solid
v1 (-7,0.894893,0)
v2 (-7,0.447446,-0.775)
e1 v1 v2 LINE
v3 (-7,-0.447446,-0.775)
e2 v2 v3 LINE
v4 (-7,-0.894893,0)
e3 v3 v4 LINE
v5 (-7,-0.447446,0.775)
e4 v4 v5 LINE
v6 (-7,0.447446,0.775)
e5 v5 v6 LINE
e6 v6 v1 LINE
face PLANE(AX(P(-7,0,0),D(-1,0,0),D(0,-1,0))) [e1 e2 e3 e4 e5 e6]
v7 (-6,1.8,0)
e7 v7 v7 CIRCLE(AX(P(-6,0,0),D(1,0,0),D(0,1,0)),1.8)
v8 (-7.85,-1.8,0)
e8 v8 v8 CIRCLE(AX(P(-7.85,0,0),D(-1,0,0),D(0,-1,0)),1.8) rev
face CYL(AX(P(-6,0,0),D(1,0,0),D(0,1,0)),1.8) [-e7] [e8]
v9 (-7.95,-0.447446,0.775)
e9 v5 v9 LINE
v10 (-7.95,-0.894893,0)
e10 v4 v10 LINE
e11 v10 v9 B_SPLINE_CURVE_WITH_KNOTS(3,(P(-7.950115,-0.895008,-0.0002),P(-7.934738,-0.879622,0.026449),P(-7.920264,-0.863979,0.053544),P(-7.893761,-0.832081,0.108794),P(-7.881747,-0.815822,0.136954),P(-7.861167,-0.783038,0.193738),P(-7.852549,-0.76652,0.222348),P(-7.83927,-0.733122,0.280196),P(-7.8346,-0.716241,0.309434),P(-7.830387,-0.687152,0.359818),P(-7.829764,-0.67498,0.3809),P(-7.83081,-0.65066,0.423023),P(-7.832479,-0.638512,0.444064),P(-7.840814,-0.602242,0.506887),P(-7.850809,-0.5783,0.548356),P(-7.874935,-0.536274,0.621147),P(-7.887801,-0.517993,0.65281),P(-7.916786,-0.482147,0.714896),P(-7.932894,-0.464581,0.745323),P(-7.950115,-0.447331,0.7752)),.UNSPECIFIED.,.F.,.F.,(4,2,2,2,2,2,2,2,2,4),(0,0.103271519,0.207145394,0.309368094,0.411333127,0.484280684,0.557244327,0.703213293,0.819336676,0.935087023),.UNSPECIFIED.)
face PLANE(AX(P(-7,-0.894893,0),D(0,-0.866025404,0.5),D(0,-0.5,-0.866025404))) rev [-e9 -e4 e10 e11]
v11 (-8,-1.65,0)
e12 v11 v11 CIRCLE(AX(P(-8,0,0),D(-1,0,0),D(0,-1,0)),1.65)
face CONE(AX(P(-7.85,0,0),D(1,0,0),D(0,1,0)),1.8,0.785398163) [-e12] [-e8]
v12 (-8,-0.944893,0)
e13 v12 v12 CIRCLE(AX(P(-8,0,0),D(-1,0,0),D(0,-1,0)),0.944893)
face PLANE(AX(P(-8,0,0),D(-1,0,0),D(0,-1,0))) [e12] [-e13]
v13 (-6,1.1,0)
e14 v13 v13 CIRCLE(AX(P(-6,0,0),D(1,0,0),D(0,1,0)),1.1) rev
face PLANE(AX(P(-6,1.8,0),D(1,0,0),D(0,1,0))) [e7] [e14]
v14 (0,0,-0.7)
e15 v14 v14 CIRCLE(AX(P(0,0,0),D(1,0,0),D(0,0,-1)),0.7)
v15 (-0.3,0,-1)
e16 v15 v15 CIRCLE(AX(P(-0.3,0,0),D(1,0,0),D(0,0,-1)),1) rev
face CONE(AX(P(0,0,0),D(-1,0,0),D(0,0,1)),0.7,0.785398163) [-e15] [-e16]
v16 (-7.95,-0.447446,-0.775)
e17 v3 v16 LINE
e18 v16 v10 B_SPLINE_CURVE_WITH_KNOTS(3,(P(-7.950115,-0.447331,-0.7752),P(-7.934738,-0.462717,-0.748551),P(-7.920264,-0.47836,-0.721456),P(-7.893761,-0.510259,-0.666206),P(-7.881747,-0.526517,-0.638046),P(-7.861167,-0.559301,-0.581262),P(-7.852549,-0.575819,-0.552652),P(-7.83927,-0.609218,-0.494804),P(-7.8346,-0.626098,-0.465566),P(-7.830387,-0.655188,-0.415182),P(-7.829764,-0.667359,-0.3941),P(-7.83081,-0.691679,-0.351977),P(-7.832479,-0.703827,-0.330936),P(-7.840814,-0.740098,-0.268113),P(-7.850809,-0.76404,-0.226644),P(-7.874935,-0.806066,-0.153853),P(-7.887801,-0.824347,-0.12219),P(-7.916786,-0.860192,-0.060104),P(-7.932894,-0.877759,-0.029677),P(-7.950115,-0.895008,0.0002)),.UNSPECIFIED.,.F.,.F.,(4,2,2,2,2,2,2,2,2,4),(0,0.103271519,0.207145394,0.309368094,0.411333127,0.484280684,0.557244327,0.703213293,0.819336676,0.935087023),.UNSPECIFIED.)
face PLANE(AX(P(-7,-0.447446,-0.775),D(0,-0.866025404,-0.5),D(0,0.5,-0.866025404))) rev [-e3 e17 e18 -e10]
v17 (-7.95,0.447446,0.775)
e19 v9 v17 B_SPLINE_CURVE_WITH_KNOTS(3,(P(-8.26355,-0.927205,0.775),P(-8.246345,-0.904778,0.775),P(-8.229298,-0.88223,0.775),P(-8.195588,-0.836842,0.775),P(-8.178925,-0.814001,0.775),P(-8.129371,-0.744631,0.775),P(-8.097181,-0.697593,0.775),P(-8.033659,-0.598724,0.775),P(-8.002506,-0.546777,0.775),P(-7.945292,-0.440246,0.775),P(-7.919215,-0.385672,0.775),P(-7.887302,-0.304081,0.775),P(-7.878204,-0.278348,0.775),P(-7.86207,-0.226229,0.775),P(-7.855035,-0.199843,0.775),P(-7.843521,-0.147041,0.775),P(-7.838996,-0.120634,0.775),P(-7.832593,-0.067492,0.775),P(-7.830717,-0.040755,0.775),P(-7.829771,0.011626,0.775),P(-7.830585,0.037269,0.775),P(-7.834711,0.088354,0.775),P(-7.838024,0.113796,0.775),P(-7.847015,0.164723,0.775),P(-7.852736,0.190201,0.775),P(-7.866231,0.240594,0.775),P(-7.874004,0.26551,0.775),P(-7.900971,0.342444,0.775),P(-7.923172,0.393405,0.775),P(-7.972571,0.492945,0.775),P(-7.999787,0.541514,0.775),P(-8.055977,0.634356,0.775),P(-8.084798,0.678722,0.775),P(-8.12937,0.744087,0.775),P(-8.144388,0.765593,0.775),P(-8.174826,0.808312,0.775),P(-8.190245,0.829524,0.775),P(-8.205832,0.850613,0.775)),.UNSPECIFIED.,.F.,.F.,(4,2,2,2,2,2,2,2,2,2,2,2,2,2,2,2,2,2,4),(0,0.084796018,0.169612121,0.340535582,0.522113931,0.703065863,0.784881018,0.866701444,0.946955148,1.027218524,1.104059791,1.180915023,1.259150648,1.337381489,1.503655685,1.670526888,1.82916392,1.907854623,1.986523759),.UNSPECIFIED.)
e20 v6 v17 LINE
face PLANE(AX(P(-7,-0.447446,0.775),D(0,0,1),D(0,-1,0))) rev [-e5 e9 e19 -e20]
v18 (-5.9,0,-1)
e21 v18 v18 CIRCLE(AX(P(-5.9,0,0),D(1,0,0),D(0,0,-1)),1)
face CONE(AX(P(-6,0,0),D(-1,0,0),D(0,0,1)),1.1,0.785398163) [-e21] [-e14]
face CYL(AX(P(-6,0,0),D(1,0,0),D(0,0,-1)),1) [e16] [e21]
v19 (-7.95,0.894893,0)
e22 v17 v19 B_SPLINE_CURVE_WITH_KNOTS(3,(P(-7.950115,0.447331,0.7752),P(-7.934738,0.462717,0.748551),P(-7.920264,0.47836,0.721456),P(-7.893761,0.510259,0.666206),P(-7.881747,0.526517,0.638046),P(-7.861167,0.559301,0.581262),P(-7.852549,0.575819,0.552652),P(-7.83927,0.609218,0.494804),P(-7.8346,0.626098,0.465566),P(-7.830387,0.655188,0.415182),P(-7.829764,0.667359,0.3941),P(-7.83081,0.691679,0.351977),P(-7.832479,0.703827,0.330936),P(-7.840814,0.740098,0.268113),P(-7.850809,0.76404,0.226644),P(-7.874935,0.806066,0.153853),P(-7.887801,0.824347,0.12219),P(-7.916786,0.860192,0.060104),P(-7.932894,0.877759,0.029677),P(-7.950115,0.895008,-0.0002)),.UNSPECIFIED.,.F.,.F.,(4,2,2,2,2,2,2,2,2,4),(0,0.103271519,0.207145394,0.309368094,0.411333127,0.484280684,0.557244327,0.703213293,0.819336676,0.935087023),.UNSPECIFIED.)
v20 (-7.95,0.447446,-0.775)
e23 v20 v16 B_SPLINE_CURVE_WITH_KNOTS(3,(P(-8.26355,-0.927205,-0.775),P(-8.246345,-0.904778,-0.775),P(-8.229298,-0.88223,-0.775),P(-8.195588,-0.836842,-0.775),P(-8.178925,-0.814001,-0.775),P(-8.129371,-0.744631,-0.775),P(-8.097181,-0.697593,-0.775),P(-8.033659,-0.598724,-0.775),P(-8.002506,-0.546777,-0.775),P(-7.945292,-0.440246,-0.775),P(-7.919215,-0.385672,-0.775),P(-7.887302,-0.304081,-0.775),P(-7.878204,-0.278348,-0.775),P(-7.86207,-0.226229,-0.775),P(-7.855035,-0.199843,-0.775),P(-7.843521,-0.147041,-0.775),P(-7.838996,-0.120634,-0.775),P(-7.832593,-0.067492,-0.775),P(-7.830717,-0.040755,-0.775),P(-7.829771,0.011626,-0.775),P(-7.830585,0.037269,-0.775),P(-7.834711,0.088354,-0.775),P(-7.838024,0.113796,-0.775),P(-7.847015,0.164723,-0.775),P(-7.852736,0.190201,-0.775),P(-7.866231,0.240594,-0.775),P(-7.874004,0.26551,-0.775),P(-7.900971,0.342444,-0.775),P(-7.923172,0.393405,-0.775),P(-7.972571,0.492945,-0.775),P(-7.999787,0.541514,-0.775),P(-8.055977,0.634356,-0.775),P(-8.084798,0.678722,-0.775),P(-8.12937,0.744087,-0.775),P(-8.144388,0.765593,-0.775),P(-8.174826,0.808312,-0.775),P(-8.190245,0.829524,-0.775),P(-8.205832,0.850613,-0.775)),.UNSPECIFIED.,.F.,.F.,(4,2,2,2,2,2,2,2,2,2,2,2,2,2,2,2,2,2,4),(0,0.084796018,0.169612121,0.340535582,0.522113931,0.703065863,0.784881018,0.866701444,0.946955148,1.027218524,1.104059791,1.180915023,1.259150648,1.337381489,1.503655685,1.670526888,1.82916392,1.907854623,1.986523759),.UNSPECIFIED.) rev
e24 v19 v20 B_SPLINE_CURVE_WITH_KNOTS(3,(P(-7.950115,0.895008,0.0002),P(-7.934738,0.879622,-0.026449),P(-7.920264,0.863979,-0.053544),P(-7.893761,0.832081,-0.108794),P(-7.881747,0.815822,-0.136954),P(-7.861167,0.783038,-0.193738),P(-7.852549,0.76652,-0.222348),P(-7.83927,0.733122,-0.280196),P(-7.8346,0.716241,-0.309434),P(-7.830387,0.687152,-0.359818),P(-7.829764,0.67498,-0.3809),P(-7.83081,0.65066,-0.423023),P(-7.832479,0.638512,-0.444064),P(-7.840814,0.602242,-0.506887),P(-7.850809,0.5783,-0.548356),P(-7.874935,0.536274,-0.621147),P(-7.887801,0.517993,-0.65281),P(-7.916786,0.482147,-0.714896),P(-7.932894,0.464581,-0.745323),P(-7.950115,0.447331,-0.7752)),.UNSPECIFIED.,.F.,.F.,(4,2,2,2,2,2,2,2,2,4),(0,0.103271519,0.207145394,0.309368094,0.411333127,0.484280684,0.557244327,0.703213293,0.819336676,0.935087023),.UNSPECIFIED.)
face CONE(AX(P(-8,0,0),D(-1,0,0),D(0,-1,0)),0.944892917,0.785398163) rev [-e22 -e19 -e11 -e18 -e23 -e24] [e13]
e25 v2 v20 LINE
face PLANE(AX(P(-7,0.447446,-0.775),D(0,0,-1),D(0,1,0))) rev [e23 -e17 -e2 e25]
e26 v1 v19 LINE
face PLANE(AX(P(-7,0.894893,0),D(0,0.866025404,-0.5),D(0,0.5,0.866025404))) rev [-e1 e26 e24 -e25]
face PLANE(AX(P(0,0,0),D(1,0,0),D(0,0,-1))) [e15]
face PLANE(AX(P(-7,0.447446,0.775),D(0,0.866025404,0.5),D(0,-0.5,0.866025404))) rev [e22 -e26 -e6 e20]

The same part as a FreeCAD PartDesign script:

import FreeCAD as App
import Part
import Sketcher
from FreeCAD import Vector
Q = App.Units.Quantity


def edges_at(feature, points):
    """Names of the edges that pass closest to the given points."""
    edges = feature.Shape.Edges
    near = lambda p: min(range(len(edges)), key=lambda i: edges[i].distToShape(Part.Vertex(*p))[0])
    return sorted({f"Edge{near(p) + 1}" for p in points})

doc = App.newDocument("Part")
params = doc.addObject("Spreadsheet::Sheet", "Params")
for row, (alias, value) in enumerate([
    ("sketch1_diameter", "2 mm"),
    ("pad1_length", "6 mm"),
    ("chamfer_size", "0.3 mm"),
    ("sketch2_width", "2 mm"),
    ("sketch2_height", "1.8 mm"),
    ("revolution_angle", "360 deg"),
    ("pocket1_length", "1 mm"),
    ("groove_angle", "360 deg"),
    ("chamfer2_size", "0.15 mm"),
    ("chamfer3_size", "0.1 mm"),
], start=1):
    params.set(f"A{row}", alias)
    params.set(f"B{row}", "=" + value)
    params.setAlias(f"B{row}", alias)

body = doc.addObject("PartDesign::Body", "Body")

sketch1 = body.newObject("Sketcher::SketchObject", "Sketch")
sketch1.AttachmentSupport = (doc.getObject("YZ_Plane"), [""])
sketch1.MapMode = "FlatFace"
sketch1.addGeometry(Part.Circle(Vector(0, 0, 0), Vector(0, 0, 1), 1), False)
sketch1.addConstraint([
    Sketcher.Constraint("Coincident", 0, 3, -1, 1),
    Sketcher.Constraint("Diameter", 0, Q("2 mm")),
])
sketch1.setExpression("Constraints[1]", "Params.sketch1_diameter")
pad1 = body.newObject("PartDesign::Pad", "Pad")
pad1.Profile = sketch1
pad1.setExpression("Length", "Params.pad1_length")
pad1.Reversed = True
doc.recompute()

chamfer = body.newObject("PartDesign::Chamfer", "Chamfer")
chamfer.Base = (pad1, edges_at(pad1, [(0, 0, 1)]))
chamfer.setExpression("Size", "Params.chamfer_size")

sketch2 = body.newObject("Sketcher::SketchObject", "Sketch001")
sketch2.AttachmentSupport = (doc.getObject("XY_Plane"), [""])
sketch2.MapMode = "FlatFace"
sketch2.addGeometry([
    Part.LineSegment(Vector(-8, 1.8, 0), Vector(-8, 0, 0)),
    Part.LineSegment(Vector(-8, 0, 0), Vector(-6, 0, 0)),
    Part.LineSegment(Vector(-6, 0, 0), Vector(-6, 1.8, 0)),
    Part.LineSegment(Vector(-6, 1.8, 0), Vector(-8, 1.8, 0)),
], False)
sketch2.addConstraint([
    Sketcher.Constraint("Coincident", 0, 2, 1, 1),
    Sketcher.Constraint("Coincident", 1, 2, 2, 1),
    Sketcher.Constraint("Coincident", 2, 2, 3, 1),
    Sketcher.Constraint("Coincident", 3, 2, 0, 1),
    Sketcher.Constraint("Vertical", 0),
    Sketcher.Constraint("Horizontal", 1),
    Sketcher.Constraint("Vertical", 2),
    Sketcher.Constraint("Horizontal", 3),
    Sketcher.Constraint("PointOnObject", 0, 2, -1),
    Sketcher.Constraint("DistanceX", 1, 1, 1, 2, Q("2 mm")),
    Sketcher.Constraint("DistanceY", 0, 2, 0, 1, Q("1.8 mm")),
    Sketcher.Constraint("DistanceX", 0, 2, -1, 1, Q("8 mm")),
])
sketch2.setExpression("Constraints[9]", "Params.sketch2_width")
sketch2.setExpression("Constraints[10]", "Params.sketch2_height")
revolution = body.newObject("PartDesign::Revolution", "Revolution")
revolution.Profile = sketch2
revolution.ReferenceAxis = (sketch2, ["H_Axis"])
revolution.setExpression("Angle", "Params.revolution_angle")

sketch3 = body.newObject("Sketcher::SketchObject", "Sketch002")
sketch3.AttachmentSupport = (doc.getObject("YZ_Plane"), [""])
sketch3.MapMode = "FlatFace"
sketch3.AttachmentOffset = App.Placement(Vector(0, 0, -8), App.Rotation())
sketch3.addGeometry([
    Part.LineSegment(Vector(0.9, 0, 0), Vector(0.4, -0.8, 0)),
    Part.LineSegment(Vector(0.4, -0.8, 0), Vector(-0.4, -0.8, 0)),
    Part.LineSegment(Vector(-0.4, -0.8, 0), Vector(-0.9, 0, 0)),
    Part.LineSegment(Vector(-0.9, 0, 0), Vector(-0.4, 0.8, 0)),
    Part.LineSegment(Vector(-0.4, 0.8, 0), Vector(0.4, 0.8, 0)),
    Part.LineSegment(Vector(0.4, 0.8, 0), Vector(0.9, 0, 0)),
], False)
sketch3.addConstraint([
    Sketcher.Constraint("Coincident", 0, 2, 1, 1),
    Sketcher.Constraint("Coincident", 1, 2, 2, 1),
    Sketcher.Constraint("Coincident", 2, 2, 3, 1),
    Sketcher.Constraint("Coincident", 3, 2, 4, 1),
    Sketcher.Constraint("Coincident", 4, 2, 5, 1),
    Sketcher.Constraint("Coincident", 5, 2, 0, 1),
    Sketcher.Constraint("Horizontal", 1),
    Sketcher.Constraint("Horizontal", 4),
    Sketcher.Constraint("Symmetric", 0, 2, 3, 2, -1, 1),
    Sketcher.Constraint("Symmetric", 2, 2, 5, 2, -1, 1),
    Sketcher.Constraint("PointOnObject", 2, 2, -1),
    Sketcher.Constraint("Parallel", 2, 5),
    Sketcher.Constraint("Vertical", 1, 2, 3, 2),
    Sketcher.Constraint("Angle", 0, Q("-120 deg")),
    Sketcher.Constraint("DistanceY", 1, 2, 3, 2, Q("1.55 mm")),
    Sketcher.Constraint("DistanceX", 1, 2, 1, 1, Q("0.894893 mm")),
])
pocket1 = body.newObject("PartDesign::Pocket", "Pocket")
pocket1.Profile = sketch3
pocket1.setExpression("Length", "Params.pocket1_length")
pocket1.Reversed = True

sketch4 = body.newObject("Sketcher::SketchObject", "Sketch003")
sketch4.AttachmentSupport = (doc.getObject("XZ_Plane"), [""])
sketch4.MapMode = "FlatFace"
sketch4.addGeometry([
    Part.LineSegment(Vector(-8, 0, 0), Vector(-8, 0.9, 0)),
    Part.LineSegment(Vector(-8, 0.9, 0), Vector(-7.1, 0, 0)),
    Part.LineSegment(Vector(-7.1, 0, 0), Vector(-8, 0, 0)),
], False)
sketch4.addConstraint([
    Sketcher.Constraint("Coincident", 0, 2, 1, 1),
    Sketcher.Constraint("Coincident", 1, 2, 2, 1),
    Sketcher.Constraint("Coincident", 2, 2, 0, 1),
    Sketcher.Constraint("Vertical", 0),
    Sketcher.Constraint("Horizontal", 2),
    Sketcher.Constraint("PointOnObject", 1, 2, -1),
    Sketcher.Constraint("Equal", 2, 0),
    Sketcher.Constraint("DistanceX", 0, 2, -1, 1, Q("8 mm")),
    Sketcher.Constraint("Distance", 1, Q("1.33628 mm")),
])
groove = body.newObject("PartDesign::Groove", "Groove")
groove.Profile = sketch4
groove.ReferenceAxis = (sketch4, ["H_Axis"])
groove.setExpression("Angle", "Params.groove_angle")
doc.recompute()

chamfer2 = body.newObject("PartDesign::Chamfer", "Chamfer001")
chamfer2.Base = (groove, edges_at(groove, [(-8, -1.8, 0)]))
chamfer2.setExpression("Size", "Params.chamfer2_size")
doc.recompute()

chamfer3 = body.newObject("PartDesign::Chamfer", "Chamfer002")
chamfer3.Base = (chamfer2, edges_at(chamfer2, [(-6, 0, 1)]))
chamfer3.setExpression("Size", "Params.chamfer3_size")

doc.recompute()
